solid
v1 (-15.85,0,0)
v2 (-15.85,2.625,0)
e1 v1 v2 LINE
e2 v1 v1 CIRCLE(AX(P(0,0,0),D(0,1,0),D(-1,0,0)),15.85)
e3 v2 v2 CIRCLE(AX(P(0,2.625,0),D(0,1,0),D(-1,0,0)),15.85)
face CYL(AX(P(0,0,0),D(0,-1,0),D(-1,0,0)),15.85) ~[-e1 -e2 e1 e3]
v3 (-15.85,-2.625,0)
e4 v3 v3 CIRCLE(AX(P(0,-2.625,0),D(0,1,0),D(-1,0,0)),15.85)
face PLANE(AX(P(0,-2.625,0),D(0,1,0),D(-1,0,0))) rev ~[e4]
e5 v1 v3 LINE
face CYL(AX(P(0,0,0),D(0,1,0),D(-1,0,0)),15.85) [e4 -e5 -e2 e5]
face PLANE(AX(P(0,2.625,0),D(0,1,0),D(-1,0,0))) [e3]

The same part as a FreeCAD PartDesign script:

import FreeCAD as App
import Part
import Sketcher
from FreeCAD import Vector

doc = App.newDocument("Part")
body = doc.addObject("PartDesign::Body", "Body")

# Sketch on XZ plane
sketch1 = body.newObject("Sketcher::SketchObject", "Sketch")
sketch1.AttachmentSupport = (doc.getObject("XZ_Plane"), [""])
sketch1.MapMode = "FlatFace"
sketch1.addGeometry(Part.Circle(Vector(0, 0, 0), Vector(0, 0, 1), 16), False)
sketch1.addConstraint([
    Sketcher.Constraint("Coincident", 0, 3, -1, 1),
    Sketcher.Constraint("Diameter", 0, 31.7),
])
pad1 = body.newObject("PartDesign::Pad", "Pad")
pad1.Profile = sketch1
pad1.Length = 5.25
pad1.Midplane = True

doc.recompute()
